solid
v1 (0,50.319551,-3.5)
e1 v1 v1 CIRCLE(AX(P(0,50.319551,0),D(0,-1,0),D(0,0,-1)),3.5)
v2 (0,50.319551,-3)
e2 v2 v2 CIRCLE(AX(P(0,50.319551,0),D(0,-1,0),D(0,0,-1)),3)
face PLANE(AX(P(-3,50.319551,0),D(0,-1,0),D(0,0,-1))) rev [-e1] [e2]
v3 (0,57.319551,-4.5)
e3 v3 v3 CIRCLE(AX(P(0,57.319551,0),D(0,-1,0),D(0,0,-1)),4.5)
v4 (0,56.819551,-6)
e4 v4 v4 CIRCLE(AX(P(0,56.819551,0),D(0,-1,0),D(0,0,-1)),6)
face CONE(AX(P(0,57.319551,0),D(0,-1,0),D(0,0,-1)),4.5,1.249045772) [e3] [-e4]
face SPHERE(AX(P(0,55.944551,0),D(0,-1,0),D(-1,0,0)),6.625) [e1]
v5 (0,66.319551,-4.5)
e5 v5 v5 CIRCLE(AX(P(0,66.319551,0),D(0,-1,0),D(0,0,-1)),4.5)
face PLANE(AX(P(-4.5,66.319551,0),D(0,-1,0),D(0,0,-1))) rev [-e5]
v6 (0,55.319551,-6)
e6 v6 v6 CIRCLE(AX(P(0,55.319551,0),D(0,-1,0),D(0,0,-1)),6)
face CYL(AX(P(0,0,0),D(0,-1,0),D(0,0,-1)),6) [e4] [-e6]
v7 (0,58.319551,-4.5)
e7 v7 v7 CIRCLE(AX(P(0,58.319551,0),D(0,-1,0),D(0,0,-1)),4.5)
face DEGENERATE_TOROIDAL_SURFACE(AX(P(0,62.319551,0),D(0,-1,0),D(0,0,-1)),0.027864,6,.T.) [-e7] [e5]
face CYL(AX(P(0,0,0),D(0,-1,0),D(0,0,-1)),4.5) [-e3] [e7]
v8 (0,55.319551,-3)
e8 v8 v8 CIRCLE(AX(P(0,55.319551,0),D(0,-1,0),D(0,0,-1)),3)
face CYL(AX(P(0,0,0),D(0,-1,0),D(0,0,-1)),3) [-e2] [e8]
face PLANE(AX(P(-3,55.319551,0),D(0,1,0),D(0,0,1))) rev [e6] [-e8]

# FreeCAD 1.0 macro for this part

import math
import FreeCAD as App
import Part
import Sketcher
Q = App.Units.Quantity

doc = App.newDocument("Part")
body = doc.addObject("PartDesign::Body", "Body")

# Sketch on XY plane
sketch1 = doc.addObject("Sketcher::SketchObject", "Sketch")
body.addObject(sketch1)
sketch1.AttachmentSupport = (doc.XY_Plane, [""])
sketch1.MapMode = "FlatFace"
sketch1.addGeometry(Part.LineSegment(App.Vector(0, 66.3, 0), App.Vector(-4.5, 66.3, 0)), False)
sketch1.addGeometry(Part.ArcOfCircle(Part.Circle(App.Vector(0, 62.3, 0), App.Vector(0, 0, 1), 6), math.radians(138), math.radians(222)), False)
sketch1.addGeometry(Part.LineSegment(App.Vector(-4.5, 58.3, 0), App.Vector(-4.5, 57.3, 0)), False)
sketch1.addGeometry(Part.LineSegment(App.Vector(-4.5, 57.3, 0), App.Vector(-6, 56.8, 0)), False)
sketch1.addGeometry(Part.LineSegment(App.Vector(-6, 56.8, 0), App.Vector(-6, 55.3, 0)), False)
sketch1.addGeometry(Part.LineSegment(App.Vector(-6, 55.3, 0), App.Vector(-3, 55.3, 0)), False)
sketch1.addGeometry(Part.LineSegment(App.Vector(-3, 55.3, 0), App.Vector(-3, 50.3, 0)), False)
sketch1.addGeometry(Part.LineSegment(App.Vector(-3, 50.3, 0), App.Vector(-3.5, 50.3, 0)), False)
sketch1.addGeometry(Part.ArcOfCircle(Part.Circle(App.Vector(0, 55.9, 0), App.Vector(0, 0, 1), 6.6), math.radians(-122), math.radians(-90)), False)
sketch1.addGeometry(Part.LineSegment(App.Vector(0, 49.3, 0), App.Vector(0, 66.3, 0)), False)
sketch1.addConstraint(Sketcher.Constraint("Coincident", 0, 2, 1, 1))
sketch1.addConstraint(Sketcher.Constraint("Coincident", 1, 2, 2, 1))
sketch1.addConstraint(Sketcher.Constraint("Coincident", 2, 2, 3, 1))
sketch1.addConstraint(Sketcher.Constraint("Coincident", 3, 2, 4, 1))
sketch1.addConstraint(Sketcher.Constraint("Coincident", 4, 2, 5, 1))
sketch1.addConstraint(Sketcher.Constraint("Coincident", 5, 2, 6, 1))
sketch1.addConstraint(Sketcher.Constraint("Coincident", 6, 2, 7, 1))
sketch1.addConstraint(Sketcher.Constraint("Coincident", 7, 2, 8, 1))
sketch1.addConstraint(Sketcher.Constraint("Coincident", 8, 2, 9, 1))
sketch1.addConstraint(Sketcher.Constraint("Coincident", 9, 2, 0, 1))
sketch1.addConstraint(Sketcher.Constraint("Horizontal", 0))
sketch1.addConstraint(Sketcher.Constraint("Vertical", 2))
sketch1.addConstraint(Sketcher.Constraint("Vertical", 4))
sketch1.addConstraint(Sketcher.Constraint("Horizontal", 5))
sketch1.addConstraint(Sketcher.Constraint("Vertical", 6))
sketch1.addConstraint(Sketcher.Constraint("Horizontal", 7))
sketch1.addConstraint(Sketcher.Constraint("Vertical", 9))
sketch1.addConstraint(Sketcher.Constraint("PointOnObject", 8, 3, -2))
sketch1.addConstraint(Sketcher.Constraint("PointOnObject", 8, 2, -2))
sketch1.addConstraint(Sketcher.Constraint("Vertical", 0, 2, 1, 2))
sketch1.addConstraint(Sketcher.Constraint("Radius", 1, Q("6 mm")))
sketch1.addConstraint(Sketcher.Constraint("DistanceX", 5, 1, 5, 2, Q("3 mm")))
sketch1.addConstraint(Sketcher.Constraint("DistanceY", 2, 2, 2, 1, Q("1 mm")))
sketch1.addConstraint(Sketcher.Constraint("DistanceY", 6, 2, 6, 1, Q("5 mm")))
sketch1.addConstraint(Sketcher.Constraint("DistanceY", 9, 1, 9, 2, Q("17 mm")))
sketch1.addConstraint(Sketcher.Constraint("DistanceX", 0, 2, 0, 1, Q("4.5 mm")))
sketch1.addConstraint(Sketcher.Constraint("DistanceX", 7, 2, 7, 1, Q("0.5 mm")))
sketch1.addConstraint(Sketcher.Constraint("DistanceY", 4, 2, 4, 1, Q("1.5 mm")))
sketch1.addConstraint(Sketcher.Constraint("DistanceX", 3, 2, -1, 1, Q("6 mm")))
sketch1.addConstraint(Sketcher.Constraint("Radius", 8, Q("6.625 mm")))
sketch1.addConstraint(Sketcher.Constraint("DistanceY", 1, 3, 0, 2, Q("4 mm")))
sketch1.addConstraint(Sketcher.Constraint("DistanceY", -1, 1, 1, 3, Q("62.319551 mm")))
revolution = doc.addObject("PartDesign::Revolution", "Revolution")
body.addObject(revolution)
revolution.Profile = sketch1
revolution.ReferenceAxis = (sketch1, ["V_Axis"])
revolution.Angle = 360

doc.recompute()
